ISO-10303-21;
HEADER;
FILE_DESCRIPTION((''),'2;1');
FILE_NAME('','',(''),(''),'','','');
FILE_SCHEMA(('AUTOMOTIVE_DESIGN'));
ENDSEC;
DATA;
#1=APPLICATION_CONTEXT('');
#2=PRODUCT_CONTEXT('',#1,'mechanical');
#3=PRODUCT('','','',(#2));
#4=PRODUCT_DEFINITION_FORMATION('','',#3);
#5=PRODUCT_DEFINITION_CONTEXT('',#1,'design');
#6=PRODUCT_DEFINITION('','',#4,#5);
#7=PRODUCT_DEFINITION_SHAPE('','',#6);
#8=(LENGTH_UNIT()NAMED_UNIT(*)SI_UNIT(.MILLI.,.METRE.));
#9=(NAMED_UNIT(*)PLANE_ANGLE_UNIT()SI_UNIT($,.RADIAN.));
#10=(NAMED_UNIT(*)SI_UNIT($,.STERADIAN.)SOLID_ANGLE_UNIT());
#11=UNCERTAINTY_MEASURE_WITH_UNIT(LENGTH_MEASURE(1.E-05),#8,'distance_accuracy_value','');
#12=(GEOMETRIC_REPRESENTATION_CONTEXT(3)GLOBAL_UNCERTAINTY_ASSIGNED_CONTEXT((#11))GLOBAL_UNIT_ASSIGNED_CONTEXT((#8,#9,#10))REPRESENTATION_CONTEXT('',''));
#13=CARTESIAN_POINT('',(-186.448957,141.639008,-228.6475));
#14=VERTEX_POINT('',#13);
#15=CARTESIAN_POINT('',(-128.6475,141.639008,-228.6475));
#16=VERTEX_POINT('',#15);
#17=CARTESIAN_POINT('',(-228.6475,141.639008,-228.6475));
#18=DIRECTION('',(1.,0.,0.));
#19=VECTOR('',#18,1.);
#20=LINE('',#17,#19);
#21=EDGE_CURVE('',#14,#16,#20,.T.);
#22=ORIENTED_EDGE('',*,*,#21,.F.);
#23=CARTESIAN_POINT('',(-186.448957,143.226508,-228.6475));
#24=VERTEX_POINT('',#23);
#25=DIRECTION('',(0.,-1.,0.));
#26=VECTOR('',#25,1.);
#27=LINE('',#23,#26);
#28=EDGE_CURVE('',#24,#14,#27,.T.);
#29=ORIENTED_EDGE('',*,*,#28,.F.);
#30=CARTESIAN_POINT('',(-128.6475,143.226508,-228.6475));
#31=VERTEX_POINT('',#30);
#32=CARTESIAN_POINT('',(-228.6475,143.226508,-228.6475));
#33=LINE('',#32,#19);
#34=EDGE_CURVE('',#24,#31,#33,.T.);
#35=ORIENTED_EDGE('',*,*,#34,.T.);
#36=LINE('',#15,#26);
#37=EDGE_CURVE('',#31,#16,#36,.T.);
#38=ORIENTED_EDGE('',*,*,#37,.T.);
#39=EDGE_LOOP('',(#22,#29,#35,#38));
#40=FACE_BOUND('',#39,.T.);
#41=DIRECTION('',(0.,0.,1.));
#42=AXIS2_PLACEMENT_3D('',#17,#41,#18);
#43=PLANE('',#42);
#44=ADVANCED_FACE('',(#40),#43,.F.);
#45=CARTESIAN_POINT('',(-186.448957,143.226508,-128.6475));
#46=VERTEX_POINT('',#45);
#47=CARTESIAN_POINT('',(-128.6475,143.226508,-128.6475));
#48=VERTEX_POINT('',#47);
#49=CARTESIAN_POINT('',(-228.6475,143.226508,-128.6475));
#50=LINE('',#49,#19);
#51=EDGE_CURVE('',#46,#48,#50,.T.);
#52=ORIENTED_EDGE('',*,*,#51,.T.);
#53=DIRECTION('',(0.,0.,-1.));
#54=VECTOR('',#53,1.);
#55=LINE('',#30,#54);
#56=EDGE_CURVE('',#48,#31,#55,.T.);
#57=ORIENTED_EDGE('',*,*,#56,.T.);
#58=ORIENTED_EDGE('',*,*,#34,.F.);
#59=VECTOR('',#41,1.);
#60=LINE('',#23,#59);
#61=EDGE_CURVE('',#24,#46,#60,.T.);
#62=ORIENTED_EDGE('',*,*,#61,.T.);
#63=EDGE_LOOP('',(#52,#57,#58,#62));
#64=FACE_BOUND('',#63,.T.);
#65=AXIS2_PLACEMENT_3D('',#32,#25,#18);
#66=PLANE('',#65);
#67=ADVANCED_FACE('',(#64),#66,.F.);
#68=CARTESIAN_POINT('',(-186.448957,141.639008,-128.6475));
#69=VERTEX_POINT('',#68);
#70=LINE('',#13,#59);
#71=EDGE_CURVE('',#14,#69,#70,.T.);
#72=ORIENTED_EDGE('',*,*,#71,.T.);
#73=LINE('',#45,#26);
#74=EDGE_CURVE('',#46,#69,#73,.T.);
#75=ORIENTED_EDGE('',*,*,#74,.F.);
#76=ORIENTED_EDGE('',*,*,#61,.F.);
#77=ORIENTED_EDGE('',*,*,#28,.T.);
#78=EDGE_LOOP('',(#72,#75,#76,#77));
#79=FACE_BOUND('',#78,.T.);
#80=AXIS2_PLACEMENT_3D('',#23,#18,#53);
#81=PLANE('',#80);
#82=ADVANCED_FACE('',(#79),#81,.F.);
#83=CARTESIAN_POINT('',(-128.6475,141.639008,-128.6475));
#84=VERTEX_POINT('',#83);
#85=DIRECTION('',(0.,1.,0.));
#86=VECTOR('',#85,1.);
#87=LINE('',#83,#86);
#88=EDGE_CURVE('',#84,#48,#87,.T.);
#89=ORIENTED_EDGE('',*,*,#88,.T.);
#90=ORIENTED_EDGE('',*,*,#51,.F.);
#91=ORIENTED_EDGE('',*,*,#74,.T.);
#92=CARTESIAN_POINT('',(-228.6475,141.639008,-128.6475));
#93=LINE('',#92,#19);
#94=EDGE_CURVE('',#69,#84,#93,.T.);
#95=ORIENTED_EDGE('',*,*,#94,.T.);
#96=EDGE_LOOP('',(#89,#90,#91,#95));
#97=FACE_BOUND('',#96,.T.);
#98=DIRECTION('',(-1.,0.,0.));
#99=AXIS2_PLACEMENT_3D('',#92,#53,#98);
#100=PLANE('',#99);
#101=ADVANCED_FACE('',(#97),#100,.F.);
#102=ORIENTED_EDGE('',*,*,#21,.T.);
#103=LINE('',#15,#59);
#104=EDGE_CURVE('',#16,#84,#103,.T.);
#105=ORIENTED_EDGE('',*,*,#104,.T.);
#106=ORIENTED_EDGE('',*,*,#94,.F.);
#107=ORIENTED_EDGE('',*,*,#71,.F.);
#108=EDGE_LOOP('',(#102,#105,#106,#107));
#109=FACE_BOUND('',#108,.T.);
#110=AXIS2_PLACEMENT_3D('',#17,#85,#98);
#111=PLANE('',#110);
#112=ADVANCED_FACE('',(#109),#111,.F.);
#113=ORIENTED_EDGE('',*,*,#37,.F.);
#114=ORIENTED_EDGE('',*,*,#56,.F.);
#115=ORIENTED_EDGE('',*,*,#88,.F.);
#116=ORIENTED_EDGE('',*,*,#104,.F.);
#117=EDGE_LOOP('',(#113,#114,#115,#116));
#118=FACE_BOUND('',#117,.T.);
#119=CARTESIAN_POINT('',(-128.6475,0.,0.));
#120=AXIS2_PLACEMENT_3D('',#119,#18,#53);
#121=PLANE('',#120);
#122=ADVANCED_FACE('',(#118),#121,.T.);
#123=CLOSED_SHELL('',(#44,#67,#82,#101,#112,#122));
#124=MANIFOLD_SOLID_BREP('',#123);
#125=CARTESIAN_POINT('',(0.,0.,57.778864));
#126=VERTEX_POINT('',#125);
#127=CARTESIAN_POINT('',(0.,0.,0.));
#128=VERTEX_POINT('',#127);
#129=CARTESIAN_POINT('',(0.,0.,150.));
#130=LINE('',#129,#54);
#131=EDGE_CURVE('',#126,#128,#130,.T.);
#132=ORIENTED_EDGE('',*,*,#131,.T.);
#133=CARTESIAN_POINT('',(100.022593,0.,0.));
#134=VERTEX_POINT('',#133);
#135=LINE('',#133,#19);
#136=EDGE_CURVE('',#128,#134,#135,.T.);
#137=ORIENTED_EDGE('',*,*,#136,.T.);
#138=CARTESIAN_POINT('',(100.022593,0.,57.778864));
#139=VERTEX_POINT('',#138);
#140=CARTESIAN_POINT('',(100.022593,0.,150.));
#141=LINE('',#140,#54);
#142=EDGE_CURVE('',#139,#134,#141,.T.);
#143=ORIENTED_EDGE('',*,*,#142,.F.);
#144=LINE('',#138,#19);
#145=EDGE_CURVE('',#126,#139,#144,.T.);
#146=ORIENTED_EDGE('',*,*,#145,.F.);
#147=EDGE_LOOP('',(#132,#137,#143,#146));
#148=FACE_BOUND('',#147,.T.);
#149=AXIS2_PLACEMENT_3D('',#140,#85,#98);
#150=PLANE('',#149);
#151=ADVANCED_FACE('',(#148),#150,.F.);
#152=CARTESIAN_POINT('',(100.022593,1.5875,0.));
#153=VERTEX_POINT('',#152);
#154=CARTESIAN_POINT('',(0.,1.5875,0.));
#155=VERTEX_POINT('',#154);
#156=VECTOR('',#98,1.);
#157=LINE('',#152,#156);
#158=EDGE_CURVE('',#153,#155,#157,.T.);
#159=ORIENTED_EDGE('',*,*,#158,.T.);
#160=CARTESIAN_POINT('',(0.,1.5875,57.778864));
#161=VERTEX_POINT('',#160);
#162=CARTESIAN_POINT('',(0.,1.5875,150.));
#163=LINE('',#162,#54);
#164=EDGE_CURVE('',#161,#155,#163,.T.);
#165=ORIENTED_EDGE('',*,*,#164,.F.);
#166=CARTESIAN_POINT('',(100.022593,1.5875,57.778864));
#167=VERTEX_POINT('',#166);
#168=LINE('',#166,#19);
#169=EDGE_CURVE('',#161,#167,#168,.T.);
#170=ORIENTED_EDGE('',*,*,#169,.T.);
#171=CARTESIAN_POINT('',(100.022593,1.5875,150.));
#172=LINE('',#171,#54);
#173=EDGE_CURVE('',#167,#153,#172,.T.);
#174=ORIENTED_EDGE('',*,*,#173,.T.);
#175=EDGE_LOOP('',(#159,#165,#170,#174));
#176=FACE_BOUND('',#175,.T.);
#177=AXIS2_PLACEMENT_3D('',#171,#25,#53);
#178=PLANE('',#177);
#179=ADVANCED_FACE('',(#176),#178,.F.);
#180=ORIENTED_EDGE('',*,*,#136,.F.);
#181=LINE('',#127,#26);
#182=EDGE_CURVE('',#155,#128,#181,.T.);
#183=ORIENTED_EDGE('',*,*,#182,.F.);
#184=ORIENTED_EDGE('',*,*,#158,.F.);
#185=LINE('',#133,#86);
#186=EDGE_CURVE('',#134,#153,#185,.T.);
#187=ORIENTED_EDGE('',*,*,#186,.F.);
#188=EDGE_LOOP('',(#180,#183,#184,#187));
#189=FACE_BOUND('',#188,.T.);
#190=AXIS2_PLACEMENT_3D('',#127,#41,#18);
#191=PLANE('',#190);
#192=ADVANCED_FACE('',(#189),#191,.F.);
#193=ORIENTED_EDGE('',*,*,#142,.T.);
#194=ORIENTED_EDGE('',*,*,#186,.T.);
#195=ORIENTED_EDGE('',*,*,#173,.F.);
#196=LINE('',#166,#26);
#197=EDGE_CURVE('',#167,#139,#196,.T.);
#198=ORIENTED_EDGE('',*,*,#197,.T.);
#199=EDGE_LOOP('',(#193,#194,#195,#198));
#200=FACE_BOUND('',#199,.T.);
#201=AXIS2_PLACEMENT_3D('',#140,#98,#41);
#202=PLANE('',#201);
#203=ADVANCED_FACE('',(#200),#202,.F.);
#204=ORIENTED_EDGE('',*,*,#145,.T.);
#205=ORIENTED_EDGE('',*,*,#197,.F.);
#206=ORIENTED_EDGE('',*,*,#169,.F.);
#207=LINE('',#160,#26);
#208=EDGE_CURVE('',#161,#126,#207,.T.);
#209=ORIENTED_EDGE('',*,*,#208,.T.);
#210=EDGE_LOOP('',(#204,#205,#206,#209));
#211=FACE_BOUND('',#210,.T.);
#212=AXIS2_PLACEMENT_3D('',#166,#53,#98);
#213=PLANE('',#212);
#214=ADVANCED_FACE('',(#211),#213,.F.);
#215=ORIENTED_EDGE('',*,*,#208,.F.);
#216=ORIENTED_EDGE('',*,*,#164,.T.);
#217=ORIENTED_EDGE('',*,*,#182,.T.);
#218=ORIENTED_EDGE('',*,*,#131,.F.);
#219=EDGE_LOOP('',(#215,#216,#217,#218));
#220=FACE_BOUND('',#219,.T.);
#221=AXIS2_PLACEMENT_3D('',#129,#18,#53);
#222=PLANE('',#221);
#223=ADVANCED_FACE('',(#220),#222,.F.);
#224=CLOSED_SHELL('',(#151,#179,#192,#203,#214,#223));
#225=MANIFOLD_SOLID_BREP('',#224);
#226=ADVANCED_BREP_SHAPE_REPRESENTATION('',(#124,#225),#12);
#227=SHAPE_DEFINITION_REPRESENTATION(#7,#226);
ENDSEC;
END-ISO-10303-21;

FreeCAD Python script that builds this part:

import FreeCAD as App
import Part
import Sketcher
from FreeCAD import Vector

doc = App.newDocument("Part")
body = doc.addObject("PartDesign::Body", "Body")

sketch1 = body.newObject("Sketcher::SketchObject", "Sketch")
sketch1.AttachmentSupport = (doc.getObject("XY_Plane"), [""])
sketch1.MapMode = "FlatFace"
sketch1.addGeometry([
    Part.LineSegment(Vector(0, 1.5875, 0), Vector(0, 0, 0)),
    Part.LineSegment(Vector(0, 0, 0), Vector(100.022593, 0, 0)),
    Part.LineSegment(Vector(100.022593, 0, 0), Vector(100.022593, 1.5875, 0)),
    Part.LineSegment(Vector(100.022593, 1.5875, 0), Vector(0, 1.5875, 0)),
], False)
sketch1.addConstraint([
    Sketcher.Constraint("Coincident", 0, 2, 1, 1),
    Sketcher.Constraint("Coincident", 1, 2, 2, 1),
    Sketcher.Constraint("Coincident", 2, 2, 3, 1),
    Sketcher.Constraint("Coincident", 3, 2, 0, 1),
    Sketcher.Constraint("Vertical", 0),
    Sketcher.Constraint("Horizontal", 1),
    Sketcher.Constraint("Vertical", 2),
    Sketcher.Constraint("Horizontal", 3),
    Sketcher.Constraint("Coincident", 0, 2, -1, 1),
    Sketcher.Constraint("DistanceY", 0, 2, 0, 1, 1.5875),
    Sketcher.Constraint("DistanceX", 1, 1, 1, 2, 100.022593),
])
pad1 = body.newObject("PartDesign::Pad", "Pad")
pad1.Profile = sketch1
pad1.Length = 150

sketch2 = body.newObject("Sketcher::SketchObject", "Sketch001")
sketch2.AttachmentSupport = (doc.getObject("XZ_Plane"), [""])
sketch2.MapMode = "FlatFace"
sketch2.addGeometry([
    Part.LineSegment(Vector(0, 150, 0), Vector(0, 57.778864, 0)),
    Part.LineSegment(Vector(0, 57.778864, 0), Vector(100.022593, 57.778864, 0)),
    Part.LineSegment(Vector(100.022593, 57.778864, 0), Vector(100.022593, 150, 0)),
    Part.LineSegment(Vector(100.022593, 150, 0), Vector(0, 150, 0)),
], False)
sketch2.addConstraint([
    Sketcher.Constraint("Coincident", 0, 2, 1, 1),
    Sketcher.Constraint("Coincident", 1, 2, 2, 1),
    Sketcher.Constraint("Coincident", 2, 2, 3, 1),
    Sketcher.Constraint("Coincident", 3, 2, 0, 1),
    Sketcher.Constraint("Vertical", 0),
    Sketcher.Constraint("Horizontal", 1),
    Sketcher.Constraint("Vertical", 2),
    Sketcher.Constraint("Horizontal", 3),
    Sketcher.Constraint("PointOnObject", 0, 2, -2),
    Sketcher.Constraint("DistanceY", -1, 1, 2, 2, 150.0),
    Sketcher.Constraint("DistanceX", 1, 1, 1, 2, 100.022593),
    Sketcher.Constraint("DistanceY", 0, 2, 0, 1, 92.221136),
])
pocket1 = body.newObject("PartDesign::Pocket", "Pocket")
pocket1.Profile = sketch2
pocket1.Length = 1.5875
body2 = doc.addObject("PartDesign::Body", "Body001")

sketch3 = body2.newObject("Sketcher::SketchObject", "Sketch002")
sketch3.AttachmentSupport = (doc.getObject("YZ_Plane001"), [""])
sketch3.MapMode = "FlatFace"
sketch3.AttachmentOffset = App.Placement(Vector(0, 0, -128.6475), App.Rotation())
sketch3.addGeometry([
    Part.LineSegment(Vector(143.226508, -228.6475, 0), Vector(141.639008, -228.6475, 0)),
    Part.LineSegment(Vector(141.639008, -228.6475, 0), Vector(141.639008, -128.6475, 0)),
    Part.LineSegment(Vector(141.639008, -128.6475, 0), Vector(143.226508, -128.6475, 0)),
    Part.LineSegment(Vector(143.226508, -128.6475, 0), Vector(143.226508, -228.6475, 0)),
], False)
sketch3.addConstraint([
    Sketcher.Constraint("Coincident", 0, 2, 1, 1),
    Sketcher.Constraint("Coincident", 1, 2, 2, 1),
    Sketcher.Constraint("Coincident", 2, 2, 3, 1),
    Sketcher.Constraint("Coincident", 3, 2, 0, 1),
    Sketcher.Constraint("Horizontal", 0),
    Sketcher.Constraint("Vertical", 1),
    Sketcher.Constraint("Horizontal", 2),
    Sketcher.Constraint("Vertical", 3),
    Sketcher.Constraint("DistanceY", 1, 1, 1, 2, 100.0),
    Sketcher.Constraint("DistanceX", 0, 2, 0, 1, 1.5875),
    Sketcher.Constraint("DistanceY", 0, 2, -1, 1, 228.6475),
    Sketcher.Constraint("DistanceX", -1, 1, 0, 2, 141.639008),
])
pad2 = body2.newObject("PartDesign::Pad", "Pad001")
pad2.Profile = sketch3
pad2.Length = 100
pad2.Reversed = True

sketch4 = body2.newObject("Sketcher::SketchObject", "Sketch003")
sketch4.AttachmentSupport = (doc.getObject("XZ_Plane001"), [""])
sketch4.MapMode = "FlatFace"
sketch4.AttachmentOffset = App.Placement(Vector(0, 0, -141.639008), App.Rotation())
sketch4.addGeometry([
    Part.LineSegment(Vector(-228.6475, -128.6475, 0), Vector(-228.6475, -228.6475, 0)),
    Part.LineSegment(Vector(-228.6475, -228.6475, 0), Vector(-186.448957, -228.6475, 0)),
    Part.LineSegment(Vector(-186.448957, -228.6475, 0), Vector(-186.448957, -128.6475, 0)),
    Part.LineSegment(Vector(-186.448957, -128.6475, 0), Vector(-228.6475, -128.6475, 0)),
], False)
sketch4.addConstraint([
    Sketcher.Constraint("Coincident", 0, 2, 1, 1),
    Sketcher.Constraint("Coincident", 1, 2, 2, 1),
    Sketcher.Constraint("Coincident", 2, 2, 3, 1),
    Sketcher.Constraint("Coincident", 3, 2, 0, 1),
    Sketcher.Constraint("Vertical", 0),
    Sketcher.Constraint("Horizontal", 1),
    Sketcher.Constraint("Vertical", 2),
    Sketcher.Constraint("Horizontal", 3),
    Sketcher.Constraint("DistanceY", 0, 2, 0, 1, 100.0),
    Sketcher.Constraint("DistanceX", 0, 2, -1, 1, 228.6475),
    Sketcher.Constraint("DistanceY", 0, 2, -1, 1, 228.6475),
    Sketcher.Constraint("DistanceX", 1, 1, 1, 2, 42.198543),
])
pocket2 = body2.newObject("PartDesign::Pocket", "Pocket001")
pocket2.Profile = sketch4
pocket2.Length = 1.5875

doc.recompute()
